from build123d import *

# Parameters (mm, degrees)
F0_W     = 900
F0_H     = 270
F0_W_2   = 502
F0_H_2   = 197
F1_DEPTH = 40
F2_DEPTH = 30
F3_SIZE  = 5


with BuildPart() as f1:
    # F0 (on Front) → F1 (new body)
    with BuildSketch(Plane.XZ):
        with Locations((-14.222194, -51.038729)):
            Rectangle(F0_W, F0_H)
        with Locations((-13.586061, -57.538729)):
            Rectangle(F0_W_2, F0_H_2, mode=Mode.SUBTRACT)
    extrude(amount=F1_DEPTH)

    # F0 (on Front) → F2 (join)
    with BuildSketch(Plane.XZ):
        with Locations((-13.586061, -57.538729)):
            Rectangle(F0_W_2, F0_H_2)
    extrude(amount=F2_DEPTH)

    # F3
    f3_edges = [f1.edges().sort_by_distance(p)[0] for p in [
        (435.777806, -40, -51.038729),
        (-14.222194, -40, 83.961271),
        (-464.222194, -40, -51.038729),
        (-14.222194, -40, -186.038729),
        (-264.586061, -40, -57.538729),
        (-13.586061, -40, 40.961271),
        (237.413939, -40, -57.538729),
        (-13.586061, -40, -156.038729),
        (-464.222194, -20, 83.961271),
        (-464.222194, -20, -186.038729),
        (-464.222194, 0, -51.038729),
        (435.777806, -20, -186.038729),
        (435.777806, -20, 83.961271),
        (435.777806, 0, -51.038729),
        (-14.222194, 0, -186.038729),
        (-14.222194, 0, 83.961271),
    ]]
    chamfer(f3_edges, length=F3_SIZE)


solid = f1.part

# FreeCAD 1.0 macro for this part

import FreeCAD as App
import Part
import Sketcher

V = App.Vector


def edges_at(feature, points):
    """Names of the edges that pass closest to the given points."""
    edges = feature.Shape.Edges
    near = lambda p: min(range(len(edges)), key=lambda i: edges[i].distToShape(Part.Vertex(*p))[0])
    return sorted({f"Edge{near(p) + 1}" for p in points})

doc = App.newDocument("Part")
body = doc.addObject("PartDesign::Body", "Body")

sketch1 = body.newObject("Sketcher::SketchObject", "Sketch")
sketch1.AttachmentSupport = (doc.getObject("XZ_Plane"), [""])
sketch1.MapMode = "FlatFace"
sketch1.addGeometry(Part.LineSegment(V(-464, 84, 0), V(-464, -186, 0)), False)
sketch1.addGeometry(Part.LineSegment(V(-464, -186, 0), V(436, -186, 0)), False)
sketch1.addGeometry(Part.LineSegment(V(436, -186, 0), V(436, 84, 0)), False)
sketch1.addGeometry(Part.LineSegment(V(436, 84, 0), V(-464, 84, 0)), False)
sketch1.addGeometry(Part.LineSegment(V(237, -156, 0), V(-265, -156, 0)), False)
sketch1.addGeometry(Part.LineSegment(V(-265, -156, 0), V(-265, 41, 0)), False)
sketch1.addGeometry(Part.LineSegment(V(-265, 41, 0), V(237, 41, 0)), False)
sketch1.addGeometry(Part.LineSegment(V(237, 41, 0), V(237, -156, 0)), False)
sketch1.addConstraint(Sketcher.Constraint("Coincident", 0, 2, 1, 1))
sketch1.addConstraint(Sketcher.Constraint("Coincident", 1, 2, 2, 1))
sketch1.addConstraint(Sketcher.Constraint("Coincident", 2, 2, 3, 1))
sketch1.addConstraint(Sketcher.Constraint("Coincident", 3, 2, 0, 1))
sketch1.addConstraint(Sketcher.Constraint("Coincident", 4, 2, 5, 1))
sketch1.addConstraint(Sketcher.Constraint("Coincident", 5, 2, 6, 1))
sketch1.addConstraint(Sketcher.Constraint("Coincident", 6, 2, 7, 1))
sketch1.addConstraint(Sketcher.Constraint("Coincident", 7, 2, 4, 1))
sketch1.addConstraint(Sketcher.Constraint("Vertical", 0))
sketch1.addConstraint(Sketcher.Constraint("Horizontal", 1))
sketch1.addConstraint(Sketcher.Constraint("Vertical", 2))
sketch1.addConstraint(Sketcher.Constraint("Horizontal", 3))
sketch1.addConstraint(Sketcher.Constraint("Horizontal", 4))
sketch1.addConstraint(Sketcher.Constraint("Vertical", 5))
sketch1.addConstraint(Sketcher.Constraint("Horizontal", 6))
sketch1.addConstraint(Sketcher.Constraint("Vertical", 7))
sketch1.addConstraint(Sketcher.Constraint("DistanceX", 1, 1, 1, 2, 900.0))
sketch1.addConstraint(Sketcher.Constraint("DistanceX", 4, 2, 4, 1, 502.0))
sketch1.addConstraint(Sketcher.Constraint("DistanceY", 0, 2, 0, 1, 270.0))
sketch1.addConstraint(Sketcher.Constraint("DistanceY", 5, 1, 5, 2, 197.0))
sketch1.addConstraint(Sketcher.Constraint("DistanceY", 0, 2, 4, 2, 30.0))
sketch1.addConstraint(Sketcher.Constraint("DistanceY", 0, 2, -1, 1, 186.038729))
sketch1.addConstraint(Sketcher.Constraint("DistanceX", 4, 2, -1, 1, 264.586061))
sketch1.addConstraint(Sketcher.Constraint("DistanceX", 0, 2, -1, 1, 464.222194))
pad1 = body.newObject("PartDesign::Pad", "Pad")
pad1.Profile = sketch1
pad1.Length = 40

sketch2 = body.newObject("Sketcher::SketchObject", "Sketch001")
sketch2.AttachmentSupport = (doc.getObject("XZ_Plane"), [""])
sketch2.MapMode = "FlatFace"
sketch2.addGeometry(Part.LineSegment(V(-265, 41, 0), V(-265, -156, 0)), False)
sketch2.addGeometry(Part.LineSegment(V(-265, -156, 0), V(237, -156, 0)), False)
sketch2.addGeometry(Part.LineSegment(V(237, -156, 0), V(237, 41, 0)), False)
sketch2.addGeometry(Part.LineSegment(V(237, 41, 0), V(-265, 41, 0)), False)
sketch2.addConstraint(Sketcher.Constraint("Coincident", 0, 2, 1, 1))
sketch2.addConstraint(Sketcher.Constraint("Coincident", 1, 2, 2, 1))
sketch2.addConstraint(Sketcher.Constraint("Coincident", 2, 2, 3, 1))
sketch2.addConstraint(Sketcher.Constraint("Coincident", 3, 2, 0, 1))
sketch2.addConstraint(Sketcher.Constraint("Vertical", 0))
sketch2.addConstraint(Sketcher.Constraint("Horizontal", 1))
sketch2.addConstraint(Sketcher.Constraint("Vertical", 2))
sketch2.addConstraint(Sketcher.Constraint("Horizontal", 3))
sketch2.addConstraint(Sketcher.Constraint("DistanceX", 1, 1, 1, 2, 502.0))
sketch2.addConstraint(Sketcher.Constraint("DistanceY", 0, 2, 0, 1, 197.0))
sketch2.addConstraint(Sketcher.Constraint("DistanceX", 0, 2, -1, 1, 264.586061))
sketch2.addConstraint(Sketcher.Constraint("DistanceY", 0, 2, -1, 1, 156.038729))
pad2 = body.newObject("PartDesign::Pad", "Pad001")
pad2.Profile = sketch2
pad2.Length = 30
doc.recompute()

chamfer = body.newObject("PartDesign::Chamfer", "Chamfer")
chamfer.Base = (pad2, edges_at(pad2, [
    (435.778, -40, -51.039),
    (-14.222, -40, 83.961),
    (-464.222, -40, -51.039),
    (-14.222, -40, -186.039),
    (-264.586, -40, -57.539),
    (-13.586, -40, 40.961),
    (237.414, -40, -57.539),
    (-13.586, -40, -156.039),
    (-464.222, -20, 83.961),
    (-464.222, -20, -186.039),
    (-464.222, 0, -51.039),
    (435.778, -20, -186.039),
    (435.778, -20, 83.961),
    (435.778, 0, -51.039),
    (-14.222, 0, -186.039),
    (-14.222, 0, 83.961),
]))
chamfer.Size = 5

doc.recompute()
